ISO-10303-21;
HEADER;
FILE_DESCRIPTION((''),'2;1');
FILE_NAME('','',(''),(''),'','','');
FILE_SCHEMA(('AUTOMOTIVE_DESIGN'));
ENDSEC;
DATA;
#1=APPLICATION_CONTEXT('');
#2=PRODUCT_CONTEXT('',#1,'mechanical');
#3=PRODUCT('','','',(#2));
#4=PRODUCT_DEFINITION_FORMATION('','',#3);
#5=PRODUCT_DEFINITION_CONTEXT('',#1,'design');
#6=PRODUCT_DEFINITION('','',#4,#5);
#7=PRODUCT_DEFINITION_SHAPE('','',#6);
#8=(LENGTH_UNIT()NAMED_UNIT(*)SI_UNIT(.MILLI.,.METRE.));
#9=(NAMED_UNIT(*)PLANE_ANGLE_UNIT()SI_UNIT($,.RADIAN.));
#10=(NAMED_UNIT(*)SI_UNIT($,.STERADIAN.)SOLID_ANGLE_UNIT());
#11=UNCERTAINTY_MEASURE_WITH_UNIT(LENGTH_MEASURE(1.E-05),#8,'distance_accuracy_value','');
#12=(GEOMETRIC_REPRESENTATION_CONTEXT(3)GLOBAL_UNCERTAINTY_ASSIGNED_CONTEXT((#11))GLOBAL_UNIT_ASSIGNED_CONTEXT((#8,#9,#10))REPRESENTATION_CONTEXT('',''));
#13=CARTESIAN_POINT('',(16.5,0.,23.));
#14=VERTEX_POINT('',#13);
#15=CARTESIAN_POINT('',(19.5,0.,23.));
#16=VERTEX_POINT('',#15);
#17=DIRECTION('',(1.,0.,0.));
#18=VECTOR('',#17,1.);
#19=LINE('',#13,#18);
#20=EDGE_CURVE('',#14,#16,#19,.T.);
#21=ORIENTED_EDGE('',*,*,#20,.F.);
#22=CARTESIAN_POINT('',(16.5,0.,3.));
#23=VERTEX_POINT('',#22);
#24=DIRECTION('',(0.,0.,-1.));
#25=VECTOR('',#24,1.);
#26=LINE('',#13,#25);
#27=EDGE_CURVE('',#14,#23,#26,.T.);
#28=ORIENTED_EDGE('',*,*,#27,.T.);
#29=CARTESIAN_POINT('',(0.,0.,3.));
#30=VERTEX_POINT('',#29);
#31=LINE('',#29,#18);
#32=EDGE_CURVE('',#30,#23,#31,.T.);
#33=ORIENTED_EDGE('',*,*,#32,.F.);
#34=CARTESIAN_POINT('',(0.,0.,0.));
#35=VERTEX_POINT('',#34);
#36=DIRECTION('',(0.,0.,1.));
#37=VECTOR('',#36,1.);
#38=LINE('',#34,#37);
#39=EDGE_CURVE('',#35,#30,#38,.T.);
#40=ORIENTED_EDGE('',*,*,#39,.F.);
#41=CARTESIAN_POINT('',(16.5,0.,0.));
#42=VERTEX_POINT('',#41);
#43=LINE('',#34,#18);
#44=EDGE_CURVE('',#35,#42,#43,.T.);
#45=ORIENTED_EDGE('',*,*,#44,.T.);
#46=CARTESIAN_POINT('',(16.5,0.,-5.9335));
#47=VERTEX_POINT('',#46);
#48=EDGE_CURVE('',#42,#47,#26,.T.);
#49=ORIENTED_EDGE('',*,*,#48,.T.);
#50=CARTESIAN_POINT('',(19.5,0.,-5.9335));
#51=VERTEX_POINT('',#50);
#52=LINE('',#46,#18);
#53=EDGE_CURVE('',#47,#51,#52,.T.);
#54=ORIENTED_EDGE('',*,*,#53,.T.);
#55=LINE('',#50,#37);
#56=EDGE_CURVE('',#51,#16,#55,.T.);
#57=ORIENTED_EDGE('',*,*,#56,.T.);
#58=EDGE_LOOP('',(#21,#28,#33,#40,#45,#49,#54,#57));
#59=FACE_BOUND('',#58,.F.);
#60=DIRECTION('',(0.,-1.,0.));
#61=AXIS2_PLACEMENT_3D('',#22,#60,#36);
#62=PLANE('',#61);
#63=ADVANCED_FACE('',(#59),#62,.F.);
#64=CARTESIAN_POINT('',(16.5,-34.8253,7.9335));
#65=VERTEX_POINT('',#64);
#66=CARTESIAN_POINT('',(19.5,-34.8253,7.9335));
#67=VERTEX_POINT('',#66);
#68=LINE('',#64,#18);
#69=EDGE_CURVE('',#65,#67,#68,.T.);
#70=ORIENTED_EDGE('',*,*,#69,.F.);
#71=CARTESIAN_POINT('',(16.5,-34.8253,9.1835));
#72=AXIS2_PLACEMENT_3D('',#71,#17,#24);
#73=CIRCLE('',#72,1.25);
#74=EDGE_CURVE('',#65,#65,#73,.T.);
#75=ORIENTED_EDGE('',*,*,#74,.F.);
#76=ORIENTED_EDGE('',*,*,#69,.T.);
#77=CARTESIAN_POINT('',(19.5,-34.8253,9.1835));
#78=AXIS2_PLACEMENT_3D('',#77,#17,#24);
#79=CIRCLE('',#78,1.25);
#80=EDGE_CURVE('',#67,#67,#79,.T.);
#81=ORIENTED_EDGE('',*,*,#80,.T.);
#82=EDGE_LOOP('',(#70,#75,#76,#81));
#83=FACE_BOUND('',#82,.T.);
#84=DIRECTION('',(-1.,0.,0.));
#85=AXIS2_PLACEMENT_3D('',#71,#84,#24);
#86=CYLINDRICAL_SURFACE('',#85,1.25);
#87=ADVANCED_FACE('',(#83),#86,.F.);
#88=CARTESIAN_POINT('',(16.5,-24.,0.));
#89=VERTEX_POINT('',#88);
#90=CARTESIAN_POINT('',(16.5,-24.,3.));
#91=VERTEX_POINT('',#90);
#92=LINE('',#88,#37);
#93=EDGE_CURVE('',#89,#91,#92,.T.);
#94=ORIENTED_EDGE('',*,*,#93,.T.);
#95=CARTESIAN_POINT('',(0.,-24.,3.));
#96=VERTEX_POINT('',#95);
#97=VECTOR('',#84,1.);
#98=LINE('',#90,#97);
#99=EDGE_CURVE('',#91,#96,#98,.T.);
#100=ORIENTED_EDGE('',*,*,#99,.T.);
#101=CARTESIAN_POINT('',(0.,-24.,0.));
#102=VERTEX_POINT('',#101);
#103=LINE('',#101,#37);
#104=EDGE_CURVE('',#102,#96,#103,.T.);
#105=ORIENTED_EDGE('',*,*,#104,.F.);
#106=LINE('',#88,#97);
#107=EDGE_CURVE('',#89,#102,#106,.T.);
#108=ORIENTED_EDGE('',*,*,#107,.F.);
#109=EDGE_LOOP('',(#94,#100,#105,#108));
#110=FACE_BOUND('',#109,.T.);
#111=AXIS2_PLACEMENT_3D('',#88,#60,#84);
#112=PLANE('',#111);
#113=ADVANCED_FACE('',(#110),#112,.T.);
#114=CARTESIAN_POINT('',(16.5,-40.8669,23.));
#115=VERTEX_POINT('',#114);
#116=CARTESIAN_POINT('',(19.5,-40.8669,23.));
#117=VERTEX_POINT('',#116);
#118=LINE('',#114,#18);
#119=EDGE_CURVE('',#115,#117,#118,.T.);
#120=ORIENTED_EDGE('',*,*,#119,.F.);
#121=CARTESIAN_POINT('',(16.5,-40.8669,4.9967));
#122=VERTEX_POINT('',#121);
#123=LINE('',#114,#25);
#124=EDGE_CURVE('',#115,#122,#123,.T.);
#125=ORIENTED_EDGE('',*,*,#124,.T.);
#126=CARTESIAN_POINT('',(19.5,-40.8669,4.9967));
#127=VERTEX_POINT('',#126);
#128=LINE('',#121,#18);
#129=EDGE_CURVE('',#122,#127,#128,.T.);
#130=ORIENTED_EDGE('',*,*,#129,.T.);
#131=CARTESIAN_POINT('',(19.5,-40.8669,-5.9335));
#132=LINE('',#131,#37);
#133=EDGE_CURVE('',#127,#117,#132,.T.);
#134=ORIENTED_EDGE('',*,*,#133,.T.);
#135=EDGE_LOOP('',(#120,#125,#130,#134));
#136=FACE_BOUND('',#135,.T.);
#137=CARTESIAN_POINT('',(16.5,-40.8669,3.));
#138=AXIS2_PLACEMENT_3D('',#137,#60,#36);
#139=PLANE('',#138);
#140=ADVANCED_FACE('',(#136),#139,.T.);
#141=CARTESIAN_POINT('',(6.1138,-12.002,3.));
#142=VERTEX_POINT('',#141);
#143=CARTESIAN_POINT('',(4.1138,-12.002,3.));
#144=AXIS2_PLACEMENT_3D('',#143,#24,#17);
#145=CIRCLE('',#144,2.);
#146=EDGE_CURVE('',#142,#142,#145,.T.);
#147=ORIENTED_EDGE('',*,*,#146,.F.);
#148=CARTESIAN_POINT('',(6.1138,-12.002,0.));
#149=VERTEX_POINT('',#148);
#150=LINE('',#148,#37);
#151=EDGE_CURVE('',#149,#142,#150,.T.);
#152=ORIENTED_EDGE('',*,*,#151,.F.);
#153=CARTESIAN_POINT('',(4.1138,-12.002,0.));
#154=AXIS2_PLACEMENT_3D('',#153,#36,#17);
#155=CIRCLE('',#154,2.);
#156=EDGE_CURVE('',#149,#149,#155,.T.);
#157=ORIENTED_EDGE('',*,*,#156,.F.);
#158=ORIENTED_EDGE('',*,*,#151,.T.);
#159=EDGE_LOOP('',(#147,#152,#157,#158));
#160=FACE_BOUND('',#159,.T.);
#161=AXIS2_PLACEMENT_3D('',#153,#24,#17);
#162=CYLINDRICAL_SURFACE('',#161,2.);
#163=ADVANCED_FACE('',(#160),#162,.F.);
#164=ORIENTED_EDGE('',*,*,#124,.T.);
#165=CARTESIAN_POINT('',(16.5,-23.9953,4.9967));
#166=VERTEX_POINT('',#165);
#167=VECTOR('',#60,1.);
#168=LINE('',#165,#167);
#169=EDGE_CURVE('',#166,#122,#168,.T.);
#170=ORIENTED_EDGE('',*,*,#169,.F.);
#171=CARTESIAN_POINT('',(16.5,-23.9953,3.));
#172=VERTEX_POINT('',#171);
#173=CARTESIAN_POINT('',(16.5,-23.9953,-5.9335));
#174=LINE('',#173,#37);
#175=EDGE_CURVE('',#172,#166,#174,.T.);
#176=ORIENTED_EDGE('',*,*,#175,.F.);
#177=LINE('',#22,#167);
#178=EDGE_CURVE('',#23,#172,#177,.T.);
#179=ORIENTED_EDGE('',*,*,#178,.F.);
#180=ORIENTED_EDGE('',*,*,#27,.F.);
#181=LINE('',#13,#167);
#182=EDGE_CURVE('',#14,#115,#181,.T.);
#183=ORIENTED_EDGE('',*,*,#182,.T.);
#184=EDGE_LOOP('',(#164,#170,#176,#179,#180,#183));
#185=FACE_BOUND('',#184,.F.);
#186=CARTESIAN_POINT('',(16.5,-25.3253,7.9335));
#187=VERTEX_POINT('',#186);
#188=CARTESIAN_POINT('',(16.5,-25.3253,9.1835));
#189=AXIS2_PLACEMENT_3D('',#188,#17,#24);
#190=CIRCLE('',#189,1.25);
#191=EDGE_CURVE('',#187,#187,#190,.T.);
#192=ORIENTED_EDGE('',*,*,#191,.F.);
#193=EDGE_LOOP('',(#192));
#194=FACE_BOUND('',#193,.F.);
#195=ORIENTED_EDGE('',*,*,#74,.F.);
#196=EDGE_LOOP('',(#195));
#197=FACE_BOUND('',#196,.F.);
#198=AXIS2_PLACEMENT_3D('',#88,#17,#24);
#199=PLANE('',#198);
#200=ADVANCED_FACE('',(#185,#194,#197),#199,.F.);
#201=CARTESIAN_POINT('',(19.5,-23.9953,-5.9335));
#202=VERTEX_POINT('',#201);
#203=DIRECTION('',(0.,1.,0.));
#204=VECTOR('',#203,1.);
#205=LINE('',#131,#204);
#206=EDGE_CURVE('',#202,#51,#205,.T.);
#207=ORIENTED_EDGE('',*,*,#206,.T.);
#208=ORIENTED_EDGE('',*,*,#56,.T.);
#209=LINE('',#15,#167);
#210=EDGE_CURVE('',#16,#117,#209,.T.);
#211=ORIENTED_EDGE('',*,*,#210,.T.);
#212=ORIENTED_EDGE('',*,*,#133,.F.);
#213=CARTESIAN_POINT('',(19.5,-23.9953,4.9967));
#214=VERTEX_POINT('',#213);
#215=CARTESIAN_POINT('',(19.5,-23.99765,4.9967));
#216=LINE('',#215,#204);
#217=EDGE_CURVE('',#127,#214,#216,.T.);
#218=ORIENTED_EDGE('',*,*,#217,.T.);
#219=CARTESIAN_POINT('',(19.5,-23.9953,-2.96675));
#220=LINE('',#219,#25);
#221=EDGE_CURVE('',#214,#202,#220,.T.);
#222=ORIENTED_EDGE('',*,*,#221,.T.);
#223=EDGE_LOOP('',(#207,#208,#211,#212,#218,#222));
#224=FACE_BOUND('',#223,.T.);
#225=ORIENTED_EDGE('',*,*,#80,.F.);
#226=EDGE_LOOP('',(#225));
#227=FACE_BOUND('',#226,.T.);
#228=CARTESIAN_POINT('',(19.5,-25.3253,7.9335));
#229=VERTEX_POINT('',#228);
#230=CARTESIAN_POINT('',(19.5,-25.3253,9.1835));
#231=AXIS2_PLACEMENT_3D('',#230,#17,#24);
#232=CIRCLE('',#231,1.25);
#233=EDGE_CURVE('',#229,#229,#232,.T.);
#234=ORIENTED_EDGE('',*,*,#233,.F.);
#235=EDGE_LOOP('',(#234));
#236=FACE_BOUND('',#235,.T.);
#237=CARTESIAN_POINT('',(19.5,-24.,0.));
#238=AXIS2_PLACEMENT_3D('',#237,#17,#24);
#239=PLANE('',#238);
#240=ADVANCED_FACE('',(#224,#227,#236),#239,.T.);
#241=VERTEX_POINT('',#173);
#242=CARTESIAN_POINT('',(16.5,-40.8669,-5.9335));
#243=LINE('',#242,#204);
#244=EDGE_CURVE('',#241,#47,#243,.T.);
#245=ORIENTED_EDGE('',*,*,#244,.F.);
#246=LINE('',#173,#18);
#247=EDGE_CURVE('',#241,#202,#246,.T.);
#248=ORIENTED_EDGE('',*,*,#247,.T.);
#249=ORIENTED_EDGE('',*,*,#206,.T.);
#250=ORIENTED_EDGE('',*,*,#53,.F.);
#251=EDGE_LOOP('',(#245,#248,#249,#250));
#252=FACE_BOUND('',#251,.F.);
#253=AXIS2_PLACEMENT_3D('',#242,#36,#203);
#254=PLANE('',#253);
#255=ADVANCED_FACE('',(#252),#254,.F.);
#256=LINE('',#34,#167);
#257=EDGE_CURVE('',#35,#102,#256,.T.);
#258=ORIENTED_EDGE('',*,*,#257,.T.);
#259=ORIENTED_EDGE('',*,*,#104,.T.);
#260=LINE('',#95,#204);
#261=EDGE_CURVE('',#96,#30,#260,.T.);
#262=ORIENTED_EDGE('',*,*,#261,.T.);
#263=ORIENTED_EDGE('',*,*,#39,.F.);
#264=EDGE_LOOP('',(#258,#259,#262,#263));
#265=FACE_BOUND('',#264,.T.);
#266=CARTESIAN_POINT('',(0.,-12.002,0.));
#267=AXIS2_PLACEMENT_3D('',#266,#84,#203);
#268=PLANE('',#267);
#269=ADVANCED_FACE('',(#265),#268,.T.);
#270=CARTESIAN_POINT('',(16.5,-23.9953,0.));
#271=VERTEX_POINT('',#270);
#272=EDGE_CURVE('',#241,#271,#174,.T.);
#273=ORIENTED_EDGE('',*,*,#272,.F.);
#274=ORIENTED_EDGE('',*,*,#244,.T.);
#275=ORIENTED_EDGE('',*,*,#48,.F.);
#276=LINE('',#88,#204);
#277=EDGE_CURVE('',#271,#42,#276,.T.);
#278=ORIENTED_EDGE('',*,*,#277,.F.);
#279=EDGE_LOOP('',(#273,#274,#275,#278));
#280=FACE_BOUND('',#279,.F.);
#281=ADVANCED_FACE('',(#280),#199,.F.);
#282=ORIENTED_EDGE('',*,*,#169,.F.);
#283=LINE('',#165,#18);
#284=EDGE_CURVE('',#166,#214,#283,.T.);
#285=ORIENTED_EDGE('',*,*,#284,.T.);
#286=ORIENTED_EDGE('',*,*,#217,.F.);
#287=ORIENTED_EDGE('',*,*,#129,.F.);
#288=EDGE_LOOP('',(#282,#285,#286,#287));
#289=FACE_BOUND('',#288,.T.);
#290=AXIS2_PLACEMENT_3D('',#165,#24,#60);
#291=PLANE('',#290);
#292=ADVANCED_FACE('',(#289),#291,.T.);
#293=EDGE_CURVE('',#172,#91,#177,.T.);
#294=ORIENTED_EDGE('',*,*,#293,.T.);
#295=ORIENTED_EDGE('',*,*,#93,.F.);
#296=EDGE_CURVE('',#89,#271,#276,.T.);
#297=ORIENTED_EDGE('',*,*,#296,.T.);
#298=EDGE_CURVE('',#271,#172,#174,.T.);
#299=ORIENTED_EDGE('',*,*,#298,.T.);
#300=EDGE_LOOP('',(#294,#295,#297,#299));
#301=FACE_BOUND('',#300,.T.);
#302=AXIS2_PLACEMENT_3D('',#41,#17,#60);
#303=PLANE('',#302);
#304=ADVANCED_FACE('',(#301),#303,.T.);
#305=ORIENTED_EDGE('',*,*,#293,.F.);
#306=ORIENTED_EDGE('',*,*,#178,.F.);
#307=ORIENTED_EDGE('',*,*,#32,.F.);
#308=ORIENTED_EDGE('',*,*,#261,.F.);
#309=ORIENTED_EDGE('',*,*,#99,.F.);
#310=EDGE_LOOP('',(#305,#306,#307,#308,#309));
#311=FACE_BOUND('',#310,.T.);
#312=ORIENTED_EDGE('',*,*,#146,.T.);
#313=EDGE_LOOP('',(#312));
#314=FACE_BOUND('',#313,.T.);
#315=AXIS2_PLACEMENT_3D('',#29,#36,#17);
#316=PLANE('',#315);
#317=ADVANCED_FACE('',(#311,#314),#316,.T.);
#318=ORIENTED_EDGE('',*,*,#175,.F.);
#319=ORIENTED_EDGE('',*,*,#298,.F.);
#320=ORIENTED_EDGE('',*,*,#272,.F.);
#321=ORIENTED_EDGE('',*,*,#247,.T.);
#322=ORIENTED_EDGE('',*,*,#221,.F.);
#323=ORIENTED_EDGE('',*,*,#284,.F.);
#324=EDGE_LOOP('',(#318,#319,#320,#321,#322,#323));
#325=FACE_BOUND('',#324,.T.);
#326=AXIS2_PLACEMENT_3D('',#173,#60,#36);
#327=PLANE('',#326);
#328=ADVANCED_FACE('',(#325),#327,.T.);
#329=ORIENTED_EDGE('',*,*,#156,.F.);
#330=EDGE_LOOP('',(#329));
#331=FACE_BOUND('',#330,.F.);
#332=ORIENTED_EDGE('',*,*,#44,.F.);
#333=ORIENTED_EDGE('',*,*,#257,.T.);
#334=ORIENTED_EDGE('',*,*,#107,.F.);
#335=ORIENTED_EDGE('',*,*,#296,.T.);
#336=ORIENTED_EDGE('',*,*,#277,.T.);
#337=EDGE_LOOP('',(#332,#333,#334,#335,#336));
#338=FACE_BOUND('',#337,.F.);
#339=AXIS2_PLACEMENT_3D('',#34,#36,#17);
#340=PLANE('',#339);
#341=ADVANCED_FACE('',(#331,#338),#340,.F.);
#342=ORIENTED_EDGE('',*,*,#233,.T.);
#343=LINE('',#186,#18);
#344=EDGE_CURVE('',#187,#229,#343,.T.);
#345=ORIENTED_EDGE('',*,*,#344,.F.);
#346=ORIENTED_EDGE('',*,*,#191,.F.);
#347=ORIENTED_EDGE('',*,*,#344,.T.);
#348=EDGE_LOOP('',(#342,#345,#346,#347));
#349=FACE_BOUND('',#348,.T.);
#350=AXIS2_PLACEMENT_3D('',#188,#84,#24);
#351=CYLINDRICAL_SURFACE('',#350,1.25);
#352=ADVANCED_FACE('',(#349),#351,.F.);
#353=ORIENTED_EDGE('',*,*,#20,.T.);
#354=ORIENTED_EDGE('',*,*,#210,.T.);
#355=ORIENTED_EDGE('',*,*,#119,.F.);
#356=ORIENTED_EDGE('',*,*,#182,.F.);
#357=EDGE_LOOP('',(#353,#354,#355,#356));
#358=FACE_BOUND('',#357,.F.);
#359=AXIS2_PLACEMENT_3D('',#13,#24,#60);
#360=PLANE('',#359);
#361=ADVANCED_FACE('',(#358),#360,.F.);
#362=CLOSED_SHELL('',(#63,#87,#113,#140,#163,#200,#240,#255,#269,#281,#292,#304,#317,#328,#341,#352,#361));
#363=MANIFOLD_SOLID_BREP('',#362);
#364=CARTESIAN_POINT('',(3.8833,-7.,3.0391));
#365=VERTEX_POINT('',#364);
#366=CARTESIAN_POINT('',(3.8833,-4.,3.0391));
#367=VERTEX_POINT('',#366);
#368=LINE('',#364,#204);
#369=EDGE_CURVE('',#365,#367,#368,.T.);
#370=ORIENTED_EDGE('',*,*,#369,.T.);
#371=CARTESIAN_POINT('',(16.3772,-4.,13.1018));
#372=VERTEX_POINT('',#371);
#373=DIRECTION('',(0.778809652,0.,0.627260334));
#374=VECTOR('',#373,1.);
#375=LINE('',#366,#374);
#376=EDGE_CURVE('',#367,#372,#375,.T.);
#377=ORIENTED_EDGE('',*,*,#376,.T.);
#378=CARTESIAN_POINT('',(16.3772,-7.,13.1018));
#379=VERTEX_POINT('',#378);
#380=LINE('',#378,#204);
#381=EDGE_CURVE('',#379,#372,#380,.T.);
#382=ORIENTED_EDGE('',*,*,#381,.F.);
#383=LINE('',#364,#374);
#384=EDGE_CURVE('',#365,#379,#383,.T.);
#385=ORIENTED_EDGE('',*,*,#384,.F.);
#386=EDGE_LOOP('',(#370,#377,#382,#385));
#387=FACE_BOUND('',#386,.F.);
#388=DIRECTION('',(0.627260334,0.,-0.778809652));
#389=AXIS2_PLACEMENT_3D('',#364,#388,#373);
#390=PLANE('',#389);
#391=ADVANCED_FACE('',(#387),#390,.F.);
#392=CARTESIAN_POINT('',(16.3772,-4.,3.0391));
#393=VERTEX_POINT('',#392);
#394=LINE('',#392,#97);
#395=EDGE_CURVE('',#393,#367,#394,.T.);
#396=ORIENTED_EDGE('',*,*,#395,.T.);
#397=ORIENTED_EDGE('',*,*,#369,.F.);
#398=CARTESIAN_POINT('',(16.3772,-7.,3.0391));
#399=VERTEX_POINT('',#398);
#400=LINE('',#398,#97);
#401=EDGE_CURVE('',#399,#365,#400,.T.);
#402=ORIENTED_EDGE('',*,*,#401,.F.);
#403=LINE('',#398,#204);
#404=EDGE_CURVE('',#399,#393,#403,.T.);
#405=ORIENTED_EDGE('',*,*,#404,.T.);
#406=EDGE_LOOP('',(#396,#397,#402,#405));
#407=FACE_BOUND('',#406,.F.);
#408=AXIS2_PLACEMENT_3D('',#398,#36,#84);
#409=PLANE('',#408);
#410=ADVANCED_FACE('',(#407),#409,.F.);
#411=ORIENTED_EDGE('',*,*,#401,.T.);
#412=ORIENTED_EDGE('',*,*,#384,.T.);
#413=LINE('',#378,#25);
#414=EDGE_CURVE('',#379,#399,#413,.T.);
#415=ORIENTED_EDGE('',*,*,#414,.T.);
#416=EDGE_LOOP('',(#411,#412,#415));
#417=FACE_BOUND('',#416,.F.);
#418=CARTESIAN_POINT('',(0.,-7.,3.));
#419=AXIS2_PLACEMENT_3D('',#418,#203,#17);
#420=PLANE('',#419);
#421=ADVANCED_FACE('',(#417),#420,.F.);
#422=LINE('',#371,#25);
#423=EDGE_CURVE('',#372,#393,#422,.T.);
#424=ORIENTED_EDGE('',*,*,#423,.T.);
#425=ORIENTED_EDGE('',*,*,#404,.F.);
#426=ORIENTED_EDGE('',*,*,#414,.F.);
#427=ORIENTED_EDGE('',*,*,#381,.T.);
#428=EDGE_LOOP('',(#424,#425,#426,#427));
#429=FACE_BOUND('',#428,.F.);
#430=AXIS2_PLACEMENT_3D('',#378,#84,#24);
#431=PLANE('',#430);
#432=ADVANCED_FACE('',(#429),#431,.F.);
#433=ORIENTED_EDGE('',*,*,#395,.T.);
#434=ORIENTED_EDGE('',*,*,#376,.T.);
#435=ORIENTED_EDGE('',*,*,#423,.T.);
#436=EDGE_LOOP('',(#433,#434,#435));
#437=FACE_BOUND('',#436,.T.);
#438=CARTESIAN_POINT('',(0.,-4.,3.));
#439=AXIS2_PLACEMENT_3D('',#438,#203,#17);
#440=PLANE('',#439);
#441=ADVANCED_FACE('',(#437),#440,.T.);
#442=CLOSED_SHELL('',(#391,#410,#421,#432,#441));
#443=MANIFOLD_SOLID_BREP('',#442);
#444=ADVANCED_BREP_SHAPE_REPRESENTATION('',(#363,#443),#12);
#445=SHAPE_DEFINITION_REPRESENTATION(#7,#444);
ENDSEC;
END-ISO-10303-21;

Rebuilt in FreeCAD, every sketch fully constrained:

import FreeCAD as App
import Part
import Sketcher

V = App.Vector

doc = App.newDocument("Part")
params = doc.addObject("Spreadsheet::Sheet", "Params")
for row, (alias, value) in enumerate([
    ("sketch1_diameter", "2.5 mm"),
    ("pad1_length", "3 mm"),
    ("sketch3_diameter", "4 mm"),
    ("sketch3_height", "24 mm"),
    ("sketch3_width", "16.5 mm"),
    ("pad2_length", "3 mm"),
    ("pad3_length", "3 mm"),
], start=1):
    params.set(f"A{row}", alias)
    params.set(f"B{row}", "=" + value)
    params.setAlias(f"B{row}", alias)

body = doc.addObject("PartDesign::Body", "Body")
body.AllowCompound = True

# Sketch on YZ plane
sketch1 = body.newObject("Sketcher::SketchObject", "Sketch")
sketch1.AttachmentSupport = (doc.getObject("YZ_Plane"), [""])
sketch1.MapMode = "FlatFace"
sketch1.AttachmentOffset = App.Placement(V(0, 0, 16.5), App.Rotation())
sketch1.addGeometry([
    Part.LineSegment(V(-40.9, 23, 0), V(-40.9, -5.9, 0)),  # 0
    Part.LineSegment(V(-40.9, -5.9, 0), V(0, -5.9, 0)),  # 1
    Part.LineSegment(V(0, -5.9, 0), V(0, 23, 0)),  # 2
    Part.LineSegment(V(0, 23, 0), V(-40.9, 23, 0)),  # 3
    Part.Circle(V(-34.8, 9.2, 0), V(0, 0, 1), 1.2),  # 4
    Part.Circle(V(-25.3, 9.2, 0), V(0, 0, 1), 1.2),  # 5
], False)
sketch1.addConstraint([
    Sketcher.Constraint("Coincident", 0, 2, 1, 1),
    Sketcher.Constraint("Coincident", 1, 2, 2, 1),
    Sketcher.Constraint("Coincident", 2, 2, 3, 1),
    Sketcher.Constraint("Coincident", 3, 2, 0, 1),
    Sketcher.Constraint("Vertical", 0),
    Sketcher.Constraint("Horizontal", 1),
    Sketcher.Constraint("Vertical", 2),
    Sketcher.Constraint("Horizontal", 3),
    Sketcher.Constraint("Equal", 4, 5),
    Sketcher.Constraint("PointOnObject", 1, 2, -2),
    Sketcher.Constraint("Horizontal", 4, 3, 5, 3),
    Sketcher.Constraint("Diameter", 4, 2.5),
    Sketcher.Constraint("DistanceX", 4, 3, 5, 3, 9.5),
    Sketcher.Constraint("DistanceY", -1, 1, 2, 2, 23.0),
    Sketcher.Constraint("DistanceX", 1, 1, 1, 2, 40.867),
    Sketcher.Constraint("DistanceY", 0, 2, 0, 1, 28.9335),
    Sketcher.Constraint("DistanceY", 0, 2, 4, 3, 15.117),
    Sketcher.Constraint("DistanceX", 4, 3, -1, 1, 34.8253),
])
sketch1.setExpression("Constraints[11]", "Params.sketch1_diameter")
pad1 = body.newObject("PartDesign::Pad", "Pad")
pad1.Profile = sketch1
pad1.setExpression("Length", "Params.pad1_length")

# Sketch on YZ plane
sketch2 = body.newObject("Sketcher::SketchObject", "Sketch001")
sketch2.AttachmentSupport = (doc.getObject("YZ_Plane"), [""])
sketch2.MapMode = "FlatFace"
sketch2.AttachmentOffset = App.Placement(V(0, 0, 16.5), App.Rotation())
sketch2.addGeometry([
    Part.LineSegment(V(-24, -6, 0), V(-41, -6, 0)),
    Part.LineSegment(V(-41, -6, 0), V(-41, 5, 0)),
    Part.LineSegment(V(-41, 5, 0), V(-24, 5, 0)),
    Part.LineSegment(V(-24, 5, 0), V(-24, -6, 0)),
], False)
sketch2.addConstraint([
    Sketcher.Constraint("Coincident", 0, 2, 1, 1),
    Sketcher.Constraint("Coincident", 1, 2, 2, 1),
    Sketcher.Constraint("Coincident", 2, 2, 3, 1),
    Sketcher.Constraint("Coincident", 3, 2, 0, 1),
    Sketcher.Constraint("Horizontal", 0),
    Sketcher.Constraint("Vertical", 1),
    Sketcher.Constraint("Horizontal", 2),
    Sketcher.Constraint("Vertical", 3),
    Sketcher.Constraint("DistanceX", 0, 2, 0, 1, 16.8716),
    Sketcher.Constraint("DistanceY", 1, 1, 1, 2, 10.9302),
    Sketcher.Constraint("DistanceX", 0, 2, -1, 1, 40.867),
    Sketcher.Constraint("DistanceY", 0, 2, -1, 1, 5.9335),
])
pocket1 = body.newObject("PartDesign::Pocket", "Pocket")
pocket1.Profile = sketch2
pocket1.Type = "ThroughAll"
pocket1.Reversed = True

# Sketch on XY plane
sketch3 = body.newObject("Sketcher::SketchObject", "Sketch002")
sketch3.AttachmentSupport = (doc.getObject("XY_Plane"), [""])
sketch3.MapMode = "FlatFace"
sketch3.addGeometry([
    Part.LineSegment(V(16.5, 0, 0), V(0, 0, 0)),  # 0
    Part.LineSegment(V(0, 0, 0), V(0, -24, 0)),  # 1
    Part.LineSegment(V(0, -24, 0), V(16.5, -24, 0)),  # 2
    Part.LineSegment(V(16.5, -24, 0), V(16.5, 0, 0)),  # 3
    Part.Circle(V(4.1, -12, 0), V(0, 0, 1), 2),  # 4
], False)
sketch3.addConstraint([
    Sketcher.Constraint("Coincident", 0, 2, 1, 1),
    Sketcher.Constraint("Coincident", 1, 2, 2, 1),
    Sketcher.Constraint("Coincident", 2, 2, 3, 1),
    Sketcher.Constraint("Coincident", 3, 2, 0, 1),
    Sketcher.Constraint("Horizontal", 0),
    Sketcher.Constraint("Vertical", 1),
    Sketcher.Constraint("Horizontal", 2),
    Sketcher.Constraint("Vertical", 3),
    Sketcher.Constraint("Coincident", 0, 2, -1, 1),
    Sketcher.Constraint("Diameter", 4, 4.0),
    Sketcher.Constraint("DistanceY", 1, 2, 1, 1, 24.0),
    Sketcher.Constraint("DistanceX", 0, 2, 0, 1, 16.5),
    Sketcher.Constraint("DistanceY", 4, 3, -1, 1, 12.002),
    Sketcher.Constraint("DistanceX", -1, 1, 4, 3, 4.1138),
])
sketch3.setExpression("Constraints[9]", "Params.sketch3_diameter")
sketch3.setExpression("Constraints[10]", "Params.sketch3_height")
sketch3.setExpression("Constraints[11]", "Params.sketch3_width")
pad2 = body.newObject("PartDesign::Pad", "Pad001")
pad2.Profile = sketch3
pad2.setExpression("Length", "Params.pad2_length")

# Sketch on XZ plane
sketch4 = body.newObject("Sketcher::SketchObject", "Sketch003")
sketch4.AttachmentSupport = (doc.getObject("XZ_Plane"), [""])
sketch4.MapMode = "FlatFace"
sketch4.AttachmentOffset = App.Placement(V(0, 0, 7), App.Rotation())
sketch4.addGeometry([
    Part.LineSegment(V(16, 3, 0), V(4, 3, 0)),
    Part.LineSegment(V(4, 3, 0), V(16, 13, 0)),
    Part.LineSegment(V(16, 13, 0), V(16, 3, 0)),
], False)
sketch4.addConstraint([
    Sketcher.Constraint("Coincident", 0, 2, 1, 1),
    Sketcher.Constraint("Coincident", 1, 2, 2, 1),
    Sketcher.Constraint("Coincident", 2, 2, 0, 1),
    Sketcher.Constraint("Horizontal", 0),
    Sketcher.Constraint("Vertical", 2),
    Sketcher.Constraint("DistanceX", 0, 2, 0, 1, 12.494),
    Sketcher.Constraint("DistanceY", 2, 2, 2, 1, 10.0627),
    Sketcher.Constraint("DistanceY", -1, 1, 0, 2, 3.039),
    Sketcher.Constraint("DistanceX", -1, 1, 0, 2, 3.8833),
])
pad3 = body.newObject("PartDesign::Pad", "Pad002")
pad3.Profile = sketch4
pad3.setExpression("Length", "Params.pad3_length")
pad3.Reversed = True

doc.recompute()
